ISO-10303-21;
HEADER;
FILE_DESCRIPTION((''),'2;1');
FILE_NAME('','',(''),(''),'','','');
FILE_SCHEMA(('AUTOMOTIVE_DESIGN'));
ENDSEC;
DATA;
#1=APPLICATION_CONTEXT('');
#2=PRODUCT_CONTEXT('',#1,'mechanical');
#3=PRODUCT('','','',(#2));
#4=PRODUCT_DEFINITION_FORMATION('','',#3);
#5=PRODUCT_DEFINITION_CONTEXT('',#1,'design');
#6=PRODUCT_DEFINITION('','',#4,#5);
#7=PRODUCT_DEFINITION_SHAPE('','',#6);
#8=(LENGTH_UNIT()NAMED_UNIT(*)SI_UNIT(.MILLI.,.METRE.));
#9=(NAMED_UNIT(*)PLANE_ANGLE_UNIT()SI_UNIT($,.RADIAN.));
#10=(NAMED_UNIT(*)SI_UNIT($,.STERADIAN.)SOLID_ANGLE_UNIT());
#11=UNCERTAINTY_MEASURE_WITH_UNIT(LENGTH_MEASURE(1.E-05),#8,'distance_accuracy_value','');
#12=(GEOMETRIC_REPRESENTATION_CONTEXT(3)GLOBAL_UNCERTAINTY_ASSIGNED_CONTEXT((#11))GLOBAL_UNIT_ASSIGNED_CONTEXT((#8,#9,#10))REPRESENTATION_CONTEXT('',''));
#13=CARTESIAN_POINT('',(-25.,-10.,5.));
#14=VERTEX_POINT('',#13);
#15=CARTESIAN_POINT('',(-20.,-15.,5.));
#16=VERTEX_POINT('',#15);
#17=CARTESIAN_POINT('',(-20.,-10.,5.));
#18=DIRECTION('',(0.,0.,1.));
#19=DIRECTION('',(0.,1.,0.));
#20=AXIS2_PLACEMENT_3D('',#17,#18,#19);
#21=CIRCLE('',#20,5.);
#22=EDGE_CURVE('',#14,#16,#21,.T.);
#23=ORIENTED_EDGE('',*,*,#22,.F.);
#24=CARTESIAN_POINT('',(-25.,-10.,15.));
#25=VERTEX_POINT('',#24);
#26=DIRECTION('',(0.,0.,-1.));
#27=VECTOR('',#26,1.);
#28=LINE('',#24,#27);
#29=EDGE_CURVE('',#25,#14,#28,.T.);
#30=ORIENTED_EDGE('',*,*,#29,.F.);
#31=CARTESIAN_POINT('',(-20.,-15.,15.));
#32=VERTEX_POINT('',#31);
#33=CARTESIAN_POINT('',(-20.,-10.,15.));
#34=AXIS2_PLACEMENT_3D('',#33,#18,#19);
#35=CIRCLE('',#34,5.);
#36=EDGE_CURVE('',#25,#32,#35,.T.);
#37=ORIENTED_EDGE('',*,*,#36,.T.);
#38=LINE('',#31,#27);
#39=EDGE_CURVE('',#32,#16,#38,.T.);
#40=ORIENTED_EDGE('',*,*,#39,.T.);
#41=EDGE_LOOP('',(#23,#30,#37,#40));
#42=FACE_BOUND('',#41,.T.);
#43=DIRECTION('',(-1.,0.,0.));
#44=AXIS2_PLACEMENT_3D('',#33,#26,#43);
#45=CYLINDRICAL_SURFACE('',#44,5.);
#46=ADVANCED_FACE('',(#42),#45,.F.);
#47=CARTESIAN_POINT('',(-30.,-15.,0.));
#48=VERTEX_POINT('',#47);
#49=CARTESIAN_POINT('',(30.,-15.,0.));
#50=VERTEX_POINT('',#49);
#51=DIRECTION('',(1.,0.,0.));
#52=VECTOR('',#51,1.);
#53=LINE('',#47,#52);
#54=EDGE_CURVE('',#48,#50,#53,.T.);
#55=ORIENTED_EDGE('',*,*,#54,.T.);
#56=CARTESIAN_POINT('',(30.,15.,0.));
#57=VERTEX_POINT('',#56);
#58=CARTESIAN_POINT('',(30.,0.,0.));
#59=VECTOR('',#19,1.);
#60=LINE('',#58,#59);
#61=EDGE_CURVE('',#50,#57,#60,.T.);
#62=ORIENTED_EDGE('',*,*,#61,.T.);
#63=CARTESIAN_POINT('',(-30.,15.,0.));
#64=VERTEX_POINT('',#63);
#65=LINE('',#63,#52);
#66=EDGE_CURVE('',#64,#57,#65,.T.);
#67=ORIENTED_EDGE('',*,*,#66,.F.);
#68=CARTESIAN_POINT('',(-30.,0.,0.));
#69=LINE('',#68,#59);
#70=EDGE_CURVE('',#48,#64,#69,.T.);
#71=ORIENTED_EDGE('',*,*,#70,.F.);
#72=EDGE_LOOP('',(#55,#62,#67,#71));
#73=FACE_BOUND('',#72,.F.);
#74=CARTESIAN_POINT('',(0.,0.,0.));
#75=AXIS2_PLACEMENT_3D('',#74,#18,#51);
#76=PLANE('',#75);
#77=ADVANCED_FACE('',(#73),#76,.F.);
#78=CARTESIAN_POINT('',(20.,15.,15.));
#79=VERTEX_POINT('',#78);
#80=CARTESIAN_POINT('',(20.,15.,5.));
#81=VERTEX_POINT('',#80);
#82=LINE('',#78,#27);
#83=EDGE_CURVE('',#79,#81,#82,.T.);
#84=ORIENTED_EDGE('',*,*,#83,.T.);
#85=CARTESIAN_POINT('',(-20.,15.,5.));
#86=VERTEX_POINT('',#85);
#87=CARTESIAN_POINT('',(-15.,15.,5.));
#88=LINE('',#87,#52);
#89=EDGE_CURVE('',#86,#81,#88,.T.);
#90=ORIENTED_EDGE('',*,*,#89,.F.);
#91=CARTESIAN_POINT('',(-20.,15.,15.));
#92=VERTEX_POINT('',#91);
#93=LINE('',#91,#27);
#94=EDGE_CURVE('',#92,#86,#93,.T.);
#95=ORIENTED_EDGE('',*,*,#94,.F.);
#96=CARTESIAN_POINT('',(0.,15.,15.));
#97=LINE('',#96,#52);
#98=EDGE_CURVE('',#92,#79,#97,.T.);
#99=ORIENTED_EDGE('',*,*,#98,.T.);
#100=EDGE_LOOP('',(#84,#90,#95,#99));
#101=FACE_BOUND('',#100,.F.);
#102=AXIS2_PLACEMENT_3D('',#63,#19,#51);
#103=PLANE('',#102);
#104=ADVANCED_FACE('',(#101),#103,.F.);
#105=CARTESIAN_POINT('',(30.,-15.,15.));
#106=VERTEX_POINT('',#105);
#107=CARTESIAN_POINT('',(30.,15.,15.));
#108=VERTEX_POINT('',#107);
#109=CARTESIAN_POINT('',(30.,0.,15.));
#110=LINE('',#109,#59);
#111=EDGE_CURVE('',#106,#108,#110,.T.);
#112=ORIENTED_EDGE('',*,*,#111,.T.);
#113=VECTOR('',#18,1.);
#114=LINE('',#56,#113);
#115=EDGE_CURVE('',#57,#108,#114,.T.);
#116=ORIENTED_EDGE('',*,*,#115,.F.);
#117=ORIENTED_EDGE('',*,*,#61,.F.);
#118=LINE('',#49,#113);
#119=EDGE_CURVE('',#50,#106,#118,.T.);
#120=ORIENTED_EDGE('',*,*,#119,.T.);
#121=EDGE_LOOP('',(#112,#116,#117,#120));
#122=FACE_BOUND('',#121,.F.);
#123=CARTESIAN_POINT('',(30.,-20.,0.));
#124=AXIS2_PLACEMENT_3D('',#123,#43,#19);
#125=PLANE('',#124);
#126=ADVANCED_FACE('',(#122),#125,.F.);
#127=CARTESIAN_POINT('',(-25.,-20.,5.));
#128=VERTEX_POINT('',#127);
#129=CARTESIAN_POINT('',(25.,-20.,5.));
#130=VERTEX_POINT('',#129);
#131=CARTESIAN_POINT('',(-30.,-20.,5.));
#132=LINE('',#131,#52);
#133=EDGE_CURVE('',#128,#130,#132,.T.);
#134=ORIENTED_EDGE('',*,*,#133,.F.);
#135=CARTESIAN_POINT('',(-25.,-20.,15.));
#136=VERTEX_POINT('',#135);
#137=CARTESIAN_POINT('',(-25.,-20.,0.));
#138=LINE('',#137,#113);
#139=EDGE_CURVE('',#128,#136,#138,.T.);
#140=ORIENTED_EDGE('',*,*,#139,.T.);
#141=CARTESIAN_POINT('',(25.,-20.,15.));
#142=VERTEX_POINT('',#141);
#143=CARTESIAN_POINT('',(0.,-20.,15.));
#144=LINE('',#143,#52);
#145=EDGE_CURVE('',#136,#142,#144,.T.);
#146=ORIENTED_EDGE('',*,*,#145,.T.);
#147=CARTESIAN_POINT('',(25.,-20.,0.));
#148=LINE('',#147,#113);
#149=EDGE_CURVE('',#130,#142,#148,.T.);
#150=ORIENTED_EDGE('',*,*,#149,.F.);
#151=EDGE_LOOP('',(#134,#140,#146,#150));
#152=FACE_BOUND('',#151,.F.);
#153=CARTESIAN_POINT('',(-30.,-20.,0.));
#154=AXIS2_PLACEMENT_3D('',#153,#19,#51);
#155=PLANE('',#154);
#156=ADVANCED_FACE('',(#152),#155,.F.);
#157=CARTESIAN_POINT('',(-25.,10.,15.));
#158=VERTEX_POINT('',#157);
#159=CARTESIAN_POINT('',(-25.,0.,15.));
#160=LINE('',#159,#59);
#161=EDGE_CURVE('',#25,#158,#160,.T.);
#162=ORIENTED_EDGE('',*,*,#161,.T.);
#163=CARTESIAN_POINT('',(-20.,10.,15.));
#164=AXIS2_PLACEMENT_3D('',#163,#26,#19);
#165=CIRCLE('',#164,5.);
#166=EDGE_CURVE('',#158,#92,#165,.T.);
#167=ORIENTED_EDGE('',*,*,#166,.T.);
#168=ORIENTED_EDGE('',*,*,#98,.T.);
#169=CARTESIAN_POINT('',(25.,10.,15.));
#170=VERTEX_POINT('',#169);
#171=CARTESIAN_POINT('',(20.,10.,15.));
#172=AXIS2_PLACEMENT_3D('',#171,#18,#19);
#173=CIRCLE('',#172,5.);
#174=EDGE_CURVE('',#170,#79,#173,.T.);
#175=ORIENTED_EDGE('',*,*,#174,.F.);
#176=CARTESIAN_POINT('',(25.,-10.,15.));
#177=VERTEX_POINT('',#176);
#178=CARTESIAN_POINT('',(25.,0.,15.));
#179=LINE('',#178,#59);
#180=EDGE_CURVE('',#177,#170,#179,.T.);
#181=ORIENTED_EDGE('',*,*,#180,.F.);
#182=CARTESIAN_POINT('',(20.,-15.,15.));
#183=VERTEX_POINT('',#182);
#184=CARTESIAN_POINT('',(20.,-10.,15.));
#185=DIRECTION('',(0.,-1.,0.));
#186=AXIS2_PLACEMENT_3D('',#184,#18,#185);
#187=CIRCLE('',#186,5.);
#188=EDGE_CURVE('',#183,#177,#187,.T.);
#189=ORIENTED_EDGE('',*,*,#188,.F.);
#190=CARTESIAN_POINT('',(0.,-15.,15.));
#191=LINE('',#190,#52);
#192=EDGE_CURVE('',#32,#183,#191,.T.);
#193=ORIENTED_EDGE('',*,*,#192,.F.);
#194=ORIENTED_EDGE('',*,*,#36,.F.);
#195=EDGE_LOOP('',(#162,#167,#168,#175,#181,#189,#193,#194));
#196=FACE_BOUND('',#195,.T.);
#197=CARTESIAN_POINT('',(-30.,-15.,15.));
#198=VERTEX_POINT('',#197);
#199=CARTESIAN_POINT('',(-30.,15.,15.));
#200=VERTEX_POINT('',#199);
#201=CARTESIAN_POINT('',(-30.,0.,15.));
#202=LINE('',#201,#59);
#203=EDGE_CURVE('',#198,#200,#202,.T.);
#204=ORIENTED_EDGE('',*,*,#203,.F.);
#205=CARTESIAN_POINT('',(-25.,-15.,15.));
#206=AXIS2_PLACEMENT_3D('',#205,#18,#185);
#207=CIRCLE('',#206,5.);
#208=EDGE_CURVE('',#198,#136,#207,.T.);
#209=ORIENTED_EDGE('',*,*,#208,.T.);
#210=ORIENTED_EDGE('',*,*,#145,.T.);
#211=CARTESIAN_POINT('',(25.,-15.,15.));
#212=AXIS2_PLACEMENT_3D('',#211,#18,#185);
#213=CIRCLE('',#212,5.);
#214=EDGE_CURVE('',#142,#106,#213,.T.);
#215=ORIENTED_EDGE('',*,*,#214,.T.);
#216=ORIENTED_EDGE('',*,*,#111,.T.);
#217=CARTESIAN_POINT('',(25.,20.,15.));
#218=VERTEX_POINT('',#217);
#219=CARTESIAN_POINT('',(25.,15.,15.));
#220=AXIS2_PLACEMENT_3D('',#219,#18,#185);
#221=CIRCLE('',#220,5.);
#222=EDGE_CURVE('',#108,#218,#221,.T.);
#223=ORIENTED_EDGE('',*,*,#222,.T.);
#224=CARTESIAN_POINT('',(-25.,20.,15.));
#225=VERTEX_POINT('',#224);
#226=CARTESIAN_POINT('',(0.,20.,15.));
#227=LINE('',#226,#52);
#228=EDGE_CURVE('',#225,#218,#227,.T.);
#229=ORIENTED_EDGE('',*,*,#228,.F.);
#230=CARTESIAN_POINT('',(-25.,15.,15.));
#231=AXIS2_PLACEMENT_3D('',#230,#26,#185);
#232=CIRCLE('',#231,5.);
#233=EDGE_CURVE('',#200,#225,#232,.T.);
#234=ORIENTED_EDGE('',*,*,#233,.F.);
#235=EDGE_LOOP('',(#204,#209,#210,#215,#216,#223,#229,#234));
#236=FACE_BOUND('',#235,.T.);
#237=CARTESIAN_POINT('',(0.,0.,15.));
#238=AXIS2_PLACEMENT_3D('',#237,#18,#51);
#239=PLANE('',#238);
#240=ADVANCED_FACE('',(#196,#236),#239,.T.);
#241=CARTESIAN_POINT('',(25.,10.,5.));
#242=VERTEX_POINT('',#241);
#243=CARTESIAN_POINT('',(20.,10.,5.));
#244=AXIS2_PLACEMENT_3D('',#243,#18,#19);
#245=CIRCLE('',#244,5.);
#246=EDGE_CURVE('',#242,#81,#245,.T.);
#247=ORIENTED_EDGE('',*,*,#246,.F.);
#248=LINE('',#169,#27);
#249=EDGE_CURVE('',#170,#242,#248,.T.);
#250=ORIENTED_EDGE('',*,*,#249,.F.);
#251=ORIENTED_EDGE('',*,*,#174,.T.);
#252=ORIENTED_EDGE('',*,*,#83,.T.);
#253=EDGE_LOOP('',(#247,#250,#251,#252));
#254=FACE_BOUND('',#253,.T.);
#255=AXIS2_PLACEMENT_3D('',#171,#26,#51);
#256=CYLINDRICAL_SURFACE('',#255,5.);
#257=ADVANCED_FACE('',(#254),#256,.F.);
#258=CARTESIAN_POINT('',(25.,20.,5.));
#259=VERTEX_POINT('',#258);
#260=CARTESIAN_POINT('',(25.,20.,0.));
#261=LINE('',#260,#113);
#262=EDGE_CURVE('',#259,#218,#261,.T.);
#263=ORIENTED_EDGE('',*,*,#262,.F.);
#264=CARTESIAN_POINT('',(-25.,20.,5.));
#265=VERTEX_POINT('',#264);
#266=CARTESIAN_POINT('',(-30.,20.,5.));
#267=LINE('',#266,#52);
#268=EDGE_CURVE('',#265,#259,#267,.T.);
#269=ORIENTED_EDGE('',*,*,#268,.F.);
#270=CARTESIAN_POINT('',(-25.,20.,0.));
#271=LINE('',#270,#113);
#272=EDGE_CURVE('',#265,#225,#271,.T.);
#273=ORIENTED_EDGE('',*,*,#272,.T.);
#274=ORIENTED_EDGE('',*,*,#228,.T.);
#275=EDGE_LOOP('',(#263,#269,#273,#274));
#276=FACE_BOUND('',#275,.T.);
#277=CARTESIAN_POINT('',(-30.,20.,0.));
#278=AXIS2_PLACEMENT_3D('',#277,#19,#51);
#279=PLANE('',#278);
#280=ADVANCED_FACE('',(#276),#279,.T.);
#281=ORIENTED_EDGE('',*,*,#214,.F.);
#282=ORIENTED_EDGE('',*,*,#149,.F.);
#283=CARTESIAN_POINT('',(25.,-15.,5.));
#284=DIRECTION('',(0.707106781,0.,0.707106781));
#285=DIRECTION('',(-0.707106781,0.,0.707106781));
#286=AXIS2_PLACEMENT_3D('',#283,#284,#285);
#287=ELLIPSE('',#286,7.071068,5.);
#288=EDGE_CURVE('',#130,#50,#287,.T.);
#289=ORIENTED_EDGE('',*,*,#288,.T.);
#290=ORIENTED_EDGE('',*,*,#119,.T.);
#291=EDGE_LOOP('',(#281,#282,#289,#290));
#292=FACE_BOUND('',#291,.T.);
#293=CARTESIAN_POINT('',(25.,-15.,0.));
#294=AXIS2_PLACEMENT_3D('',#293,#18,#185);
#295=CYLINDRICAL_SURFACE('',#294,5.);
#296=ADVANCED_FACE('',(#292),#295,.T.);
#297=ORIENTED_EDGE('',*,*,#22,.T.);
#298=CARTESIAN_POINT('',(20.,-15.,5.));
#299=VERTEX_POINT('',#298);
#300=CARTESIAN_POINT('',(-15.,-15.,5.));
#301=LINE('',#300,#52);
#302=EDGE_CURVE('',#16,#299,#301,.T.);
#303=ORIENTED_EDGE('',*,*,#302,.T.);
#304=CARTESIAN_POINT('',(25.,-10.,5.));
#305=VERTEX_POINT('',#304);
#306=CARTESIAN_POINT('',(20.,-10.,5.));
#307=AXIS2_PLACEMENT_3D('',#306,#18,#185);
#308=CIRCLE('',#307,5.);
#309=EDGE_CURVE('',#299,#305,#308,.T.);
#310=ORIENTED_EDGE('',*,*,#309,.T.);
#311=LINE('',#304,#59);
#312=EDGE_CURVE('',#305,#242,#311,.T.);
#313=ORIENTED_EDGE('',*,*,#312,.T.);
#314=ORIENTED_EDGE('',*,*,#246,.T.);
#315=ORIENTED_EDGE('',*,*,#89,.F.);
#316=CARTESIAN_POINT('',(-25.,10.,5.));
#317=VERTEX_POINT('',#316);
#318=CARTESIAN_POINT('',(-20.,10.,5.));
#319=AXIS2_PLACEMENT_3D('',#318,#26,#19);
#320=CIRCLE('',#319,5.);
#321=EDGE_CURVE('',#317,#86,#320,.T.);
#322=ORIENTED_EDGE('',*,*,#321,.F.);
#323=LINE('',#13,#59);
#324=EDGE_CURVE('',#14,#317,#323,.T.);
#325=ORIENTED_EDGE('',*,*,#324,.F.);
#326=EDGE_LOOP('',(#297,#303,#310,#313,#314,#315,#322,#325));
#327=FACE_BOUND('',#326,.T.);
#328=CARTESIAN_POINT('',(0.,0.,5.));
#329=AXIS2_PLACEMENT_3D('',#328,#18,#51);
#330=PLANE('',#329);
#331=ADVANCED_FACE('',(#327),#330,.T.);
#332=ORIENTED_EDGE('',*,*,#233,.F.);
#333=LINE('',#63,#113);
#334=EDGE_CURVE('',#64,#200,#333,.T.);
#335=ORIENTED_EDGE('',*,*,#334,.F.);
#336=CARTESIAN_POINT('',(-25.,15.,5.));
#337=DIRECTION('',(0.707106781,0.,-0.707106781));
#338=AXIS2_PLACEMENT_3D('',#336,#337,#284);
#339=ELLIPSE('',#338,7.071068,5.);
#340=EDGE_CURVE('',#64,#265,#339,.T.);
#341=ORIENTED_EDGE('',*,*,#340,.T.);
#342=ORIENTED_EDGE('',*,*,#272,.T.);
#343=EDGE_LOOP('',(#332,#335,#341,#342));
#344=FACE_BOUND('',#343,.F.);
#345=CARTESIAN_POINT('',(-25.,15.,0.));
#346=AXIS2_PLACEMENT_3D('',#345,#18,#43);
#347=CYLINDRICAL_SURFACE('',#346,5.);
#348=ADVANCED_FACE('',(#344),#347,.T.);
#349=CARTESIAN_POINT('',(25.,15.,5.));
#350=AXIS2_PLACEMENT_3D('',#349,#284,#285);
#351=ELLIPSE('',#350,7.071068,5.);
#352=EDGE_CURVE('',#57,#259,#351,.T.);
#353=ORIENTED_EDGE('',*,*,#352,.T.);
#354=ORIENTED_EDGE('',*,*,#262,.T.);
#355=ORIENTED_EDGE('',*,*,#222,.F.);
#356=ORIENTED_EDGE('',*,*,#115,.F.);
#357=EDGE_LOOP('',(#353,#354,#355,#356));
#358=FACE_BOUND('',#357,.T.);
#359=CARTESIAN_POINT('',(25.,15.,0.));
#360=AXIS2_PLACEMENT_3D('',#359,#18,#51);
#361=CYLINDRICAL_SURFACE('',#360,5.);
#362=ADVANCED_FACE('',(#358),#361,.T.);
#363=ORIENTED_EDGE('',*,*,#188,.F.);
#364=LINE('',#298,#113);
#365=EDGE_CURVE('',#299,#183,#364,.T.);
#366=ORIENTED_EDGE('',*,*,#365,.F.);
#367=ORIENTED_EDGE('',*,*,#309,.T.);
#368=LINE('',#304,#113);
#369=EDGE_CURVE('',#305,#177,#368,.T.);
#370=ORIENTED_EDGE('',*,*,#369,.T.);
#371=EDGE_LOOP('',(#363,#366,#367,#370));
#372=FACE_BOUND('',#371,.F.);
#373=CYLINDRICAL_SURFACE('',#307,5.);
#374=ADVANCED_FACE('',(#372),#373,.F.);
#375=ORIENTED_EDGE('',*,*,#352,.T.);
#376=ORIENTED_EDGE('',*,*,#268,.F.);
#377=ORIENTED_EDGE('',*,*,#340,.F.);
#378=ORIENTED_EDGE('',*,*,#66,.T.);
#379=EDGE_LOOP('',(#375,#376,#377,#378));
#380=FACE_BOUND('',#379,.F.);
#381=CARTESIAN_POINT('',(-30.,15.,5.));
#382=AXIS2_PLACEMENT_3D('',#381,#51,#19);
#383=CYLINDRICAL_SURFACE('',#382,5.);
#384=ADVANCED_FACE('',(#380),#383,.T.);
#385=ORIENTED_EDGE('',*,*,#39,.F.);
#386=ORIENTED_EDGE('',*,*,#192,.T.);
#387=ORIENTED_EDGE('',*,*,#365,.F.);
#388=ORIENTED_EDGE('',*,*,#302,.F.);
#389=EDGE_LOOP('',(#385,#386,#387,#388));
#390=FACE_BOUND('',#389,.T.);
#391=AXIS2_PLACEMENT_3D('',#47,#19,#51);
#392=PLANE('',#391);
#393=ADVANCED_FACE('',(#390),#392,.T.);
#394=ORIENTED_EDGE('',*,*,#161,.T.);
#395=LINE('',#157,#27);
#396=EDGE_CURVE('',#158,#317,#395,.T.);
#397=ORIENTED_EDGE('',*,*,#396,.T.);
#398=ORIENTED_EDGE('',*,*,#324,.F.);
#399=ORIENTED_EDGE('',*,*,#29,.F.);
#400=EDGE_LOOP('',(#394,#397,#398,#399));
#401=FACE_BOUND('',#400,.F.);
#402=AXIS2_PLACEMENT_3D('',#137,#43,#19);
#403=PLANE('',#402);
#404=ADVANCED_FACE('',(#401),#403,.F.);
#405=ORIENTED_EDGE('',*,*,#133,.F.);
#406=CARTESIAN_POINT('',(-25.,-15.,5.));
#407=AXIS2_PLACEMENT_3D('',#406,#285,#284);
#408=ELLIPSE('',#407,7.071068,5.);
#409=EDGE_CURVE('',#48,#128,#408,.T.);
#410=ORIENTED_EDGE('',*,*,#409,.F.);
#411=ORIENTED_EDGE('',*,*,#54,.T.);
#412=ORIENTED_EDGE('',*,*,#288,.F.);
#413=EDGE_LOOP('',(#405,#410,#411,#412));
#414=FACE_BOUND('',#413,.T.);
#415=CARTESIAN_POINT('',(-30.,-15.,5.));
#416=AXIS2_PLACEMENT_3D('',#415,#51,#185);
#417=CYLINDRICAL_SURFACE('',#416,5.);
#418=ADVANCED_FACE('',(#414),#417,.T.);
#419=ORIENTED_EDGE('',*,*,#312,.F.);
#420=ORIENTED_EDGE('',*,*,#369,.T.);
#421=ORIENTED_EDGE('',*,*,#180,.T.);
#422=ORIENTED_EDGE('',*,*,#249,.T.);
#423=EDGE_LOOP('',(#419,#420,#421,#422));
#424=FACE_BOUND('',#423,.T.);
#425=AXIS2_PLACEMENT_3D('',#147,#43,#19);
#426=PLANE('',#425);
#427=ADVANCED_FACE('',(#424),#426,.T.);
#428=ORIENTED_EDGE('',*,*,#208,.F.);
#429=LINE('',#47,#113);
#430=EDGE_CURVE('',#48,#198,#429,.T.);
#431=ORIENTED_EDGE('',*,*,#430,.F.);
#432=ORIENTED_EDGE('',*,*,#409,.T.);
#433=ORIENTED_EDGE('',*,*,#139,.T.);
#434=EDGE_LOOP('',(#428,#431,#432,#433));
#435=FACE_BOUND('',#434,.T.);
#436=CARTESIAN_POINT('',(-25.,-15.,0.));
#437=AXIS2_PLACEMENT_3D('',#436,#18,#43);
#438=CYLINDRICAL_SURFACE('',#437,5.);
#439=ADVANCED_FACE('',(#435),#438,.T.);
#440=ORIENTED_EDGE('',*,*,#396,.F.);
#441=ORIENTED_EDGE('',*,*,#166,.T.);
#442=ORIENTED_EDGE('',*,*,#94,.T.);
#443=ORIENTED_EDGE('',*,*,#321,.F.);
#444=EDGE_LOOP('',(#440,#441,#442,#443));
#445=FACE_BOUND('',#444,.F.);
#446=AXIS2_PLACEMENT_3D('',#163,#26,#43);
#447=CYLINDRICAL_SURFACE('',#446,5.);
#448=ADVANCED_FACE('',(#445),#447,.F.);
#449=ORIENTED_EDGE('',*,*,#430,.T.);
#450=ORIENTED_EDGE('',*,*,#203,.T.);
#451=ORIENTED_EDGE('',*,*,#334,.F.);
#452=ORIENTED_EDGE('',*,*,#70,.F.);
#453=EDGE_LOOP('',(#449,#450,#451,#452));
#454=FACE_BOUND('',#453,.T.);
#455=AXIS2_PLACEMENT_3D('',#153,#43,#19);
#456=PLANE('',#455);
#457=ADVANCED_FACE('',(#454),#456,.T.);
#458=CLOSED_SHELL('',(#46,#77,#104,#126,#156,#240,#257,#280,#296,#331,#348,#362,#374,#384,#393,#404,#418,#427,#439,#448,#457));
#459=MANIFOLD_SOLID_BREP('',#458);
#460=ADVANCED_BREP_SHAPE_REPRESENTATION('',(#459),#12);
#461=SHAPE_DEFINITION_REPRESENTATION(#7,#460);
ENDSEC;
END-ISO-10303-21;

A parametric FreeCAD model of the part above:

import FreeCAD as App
import Part
import Sketcher
from FreeCAD import Vector


def edges_at(feature, points):
    """Names of the edges that pass closest to the given points."""
    edges = feature.Shape.Edges
    near = lambda p: min(range(len(edges)), key=lambda i: edges[i].distToShape(Part.Vertex(*p))[0])
    return sorted({f"Edge{near(p) + 1}" for p in points})


def faces_at(feature, points):
    """Names of the faces that lie closest to the given points."""
    faces = feature.Shape.Faces
    near = lambda p: min(range(len(faces)), key=lambda i: faces[i].distToShape(Part.Vertex(*p))[0])
    return sorted({f"Face{near(p) + 1}" for p in points})

doc = App.newDocument("Part")
params = doc.addObject("Spreadsheet::Sheet", "Params")
for row, (alias, value) in enumerate([
    ("sketch1_width", "60 mm"),
    ("sketch1_height", "40 mm"),
    ("pad1_length", "15 mm"),
    ("thickness_wall", "5 mm"),
    ("fillet_radius", "5 mm"),
], start=1):
    params.set(f"A{row}", alias)
    params.set(f"B{row}", "=" + value)
    params.setAlias(f"B{row}", alias)

body = doc.addObject("PartDesign::Body", "Body")

# Sketch on XY plane
sketch1 = body.newObject("Sketcher::SketchObject", "Sketch")
sketch1.AttachmentSupport = (doc.getObject("XY_Plane"), [""])
sketch1.MapMode = "FlatFace"
sketch1.addGeometry([
    Part.LineSegment(Vector(-30, 20, 0), Vector(-30, -20, 0)),
    Part.LineSegment(Vector(-30, -20, 0), Vector(30, -20, 0)),
    Part.LineSegment(Vector(30, -20, 0), Vector(30, 20, 0)),
    Part.LineSegment(Vector(30, 20, 0), Vector(-30, 20, 0)),
], False)
sketch1.addConstraint([
    Sketcher.Constraint("Coincident", 0, 2, 1, 1),
    Sketcher.Constraint("Coincident", 1, 2, 2, 1),
    Sketcher.Constraint("Coincident", 2, 2, 3, 1),
    Sketcher.Constraint("Coincident", 3, 2, 0, 1),
    Sketcher.Constraint("Vertical", 0),
    Sketcher.Constraint("Horizontal", 1),
    Sketcher.Constraint("Vertical", 2),
    Sketcher.Constraint("Horizontal", 3),
    Sketcher.Constraint("Symmetric", 0, 2, 2, 2, -1, 1),
    Sketcher.Constraint("DistanceX", 1, 1, 1, 2, 60.0),
    Sketcher.Constraint("DistanceY", 0, 2, 0, 1, 40.0),
])
sketch1.setExpression("Constraints[9]", "Params.sketch1_width")
sketch1.setExpression("Constraints[10]", "Params.sketch1_height")
pad1 = body.newObject("PartDesign::Pad", "Pad")
pad1.Profile = sketch1
pad1.setExpression("Length", "Params.pad1_length")
doc.recompute()

thickness = body.newObject("PartDesign::Thickness", "Thickness")
thickness.Base = (pad1, faces_at(pad1, [(0, 0, 15)]))
thickness.setExpression("Value", "Params.thickness_wall")
thickness.Reversed = True
thickness.Join = "Arc"
doc.recompute()

fillet = body.newObject("PartDesign::Fillet", "Fillet")
fillet.Base = (thickness, edges_at(thickness, [
    (-30, 20, 7.5),
    (30, 20, 7.5),
    (-30, -20, 7.5),
    (30, -20, 7.5),
    (-25, -15, 10),
    (-25, 15, 10),
    (25, -15, 10),
    (25, 15, 10),
    (0, 20, 0),
    (0, -20, 0),
]))
fillet.setExpression("Radius", "Params.fillet_radius")

doc.recompute()
